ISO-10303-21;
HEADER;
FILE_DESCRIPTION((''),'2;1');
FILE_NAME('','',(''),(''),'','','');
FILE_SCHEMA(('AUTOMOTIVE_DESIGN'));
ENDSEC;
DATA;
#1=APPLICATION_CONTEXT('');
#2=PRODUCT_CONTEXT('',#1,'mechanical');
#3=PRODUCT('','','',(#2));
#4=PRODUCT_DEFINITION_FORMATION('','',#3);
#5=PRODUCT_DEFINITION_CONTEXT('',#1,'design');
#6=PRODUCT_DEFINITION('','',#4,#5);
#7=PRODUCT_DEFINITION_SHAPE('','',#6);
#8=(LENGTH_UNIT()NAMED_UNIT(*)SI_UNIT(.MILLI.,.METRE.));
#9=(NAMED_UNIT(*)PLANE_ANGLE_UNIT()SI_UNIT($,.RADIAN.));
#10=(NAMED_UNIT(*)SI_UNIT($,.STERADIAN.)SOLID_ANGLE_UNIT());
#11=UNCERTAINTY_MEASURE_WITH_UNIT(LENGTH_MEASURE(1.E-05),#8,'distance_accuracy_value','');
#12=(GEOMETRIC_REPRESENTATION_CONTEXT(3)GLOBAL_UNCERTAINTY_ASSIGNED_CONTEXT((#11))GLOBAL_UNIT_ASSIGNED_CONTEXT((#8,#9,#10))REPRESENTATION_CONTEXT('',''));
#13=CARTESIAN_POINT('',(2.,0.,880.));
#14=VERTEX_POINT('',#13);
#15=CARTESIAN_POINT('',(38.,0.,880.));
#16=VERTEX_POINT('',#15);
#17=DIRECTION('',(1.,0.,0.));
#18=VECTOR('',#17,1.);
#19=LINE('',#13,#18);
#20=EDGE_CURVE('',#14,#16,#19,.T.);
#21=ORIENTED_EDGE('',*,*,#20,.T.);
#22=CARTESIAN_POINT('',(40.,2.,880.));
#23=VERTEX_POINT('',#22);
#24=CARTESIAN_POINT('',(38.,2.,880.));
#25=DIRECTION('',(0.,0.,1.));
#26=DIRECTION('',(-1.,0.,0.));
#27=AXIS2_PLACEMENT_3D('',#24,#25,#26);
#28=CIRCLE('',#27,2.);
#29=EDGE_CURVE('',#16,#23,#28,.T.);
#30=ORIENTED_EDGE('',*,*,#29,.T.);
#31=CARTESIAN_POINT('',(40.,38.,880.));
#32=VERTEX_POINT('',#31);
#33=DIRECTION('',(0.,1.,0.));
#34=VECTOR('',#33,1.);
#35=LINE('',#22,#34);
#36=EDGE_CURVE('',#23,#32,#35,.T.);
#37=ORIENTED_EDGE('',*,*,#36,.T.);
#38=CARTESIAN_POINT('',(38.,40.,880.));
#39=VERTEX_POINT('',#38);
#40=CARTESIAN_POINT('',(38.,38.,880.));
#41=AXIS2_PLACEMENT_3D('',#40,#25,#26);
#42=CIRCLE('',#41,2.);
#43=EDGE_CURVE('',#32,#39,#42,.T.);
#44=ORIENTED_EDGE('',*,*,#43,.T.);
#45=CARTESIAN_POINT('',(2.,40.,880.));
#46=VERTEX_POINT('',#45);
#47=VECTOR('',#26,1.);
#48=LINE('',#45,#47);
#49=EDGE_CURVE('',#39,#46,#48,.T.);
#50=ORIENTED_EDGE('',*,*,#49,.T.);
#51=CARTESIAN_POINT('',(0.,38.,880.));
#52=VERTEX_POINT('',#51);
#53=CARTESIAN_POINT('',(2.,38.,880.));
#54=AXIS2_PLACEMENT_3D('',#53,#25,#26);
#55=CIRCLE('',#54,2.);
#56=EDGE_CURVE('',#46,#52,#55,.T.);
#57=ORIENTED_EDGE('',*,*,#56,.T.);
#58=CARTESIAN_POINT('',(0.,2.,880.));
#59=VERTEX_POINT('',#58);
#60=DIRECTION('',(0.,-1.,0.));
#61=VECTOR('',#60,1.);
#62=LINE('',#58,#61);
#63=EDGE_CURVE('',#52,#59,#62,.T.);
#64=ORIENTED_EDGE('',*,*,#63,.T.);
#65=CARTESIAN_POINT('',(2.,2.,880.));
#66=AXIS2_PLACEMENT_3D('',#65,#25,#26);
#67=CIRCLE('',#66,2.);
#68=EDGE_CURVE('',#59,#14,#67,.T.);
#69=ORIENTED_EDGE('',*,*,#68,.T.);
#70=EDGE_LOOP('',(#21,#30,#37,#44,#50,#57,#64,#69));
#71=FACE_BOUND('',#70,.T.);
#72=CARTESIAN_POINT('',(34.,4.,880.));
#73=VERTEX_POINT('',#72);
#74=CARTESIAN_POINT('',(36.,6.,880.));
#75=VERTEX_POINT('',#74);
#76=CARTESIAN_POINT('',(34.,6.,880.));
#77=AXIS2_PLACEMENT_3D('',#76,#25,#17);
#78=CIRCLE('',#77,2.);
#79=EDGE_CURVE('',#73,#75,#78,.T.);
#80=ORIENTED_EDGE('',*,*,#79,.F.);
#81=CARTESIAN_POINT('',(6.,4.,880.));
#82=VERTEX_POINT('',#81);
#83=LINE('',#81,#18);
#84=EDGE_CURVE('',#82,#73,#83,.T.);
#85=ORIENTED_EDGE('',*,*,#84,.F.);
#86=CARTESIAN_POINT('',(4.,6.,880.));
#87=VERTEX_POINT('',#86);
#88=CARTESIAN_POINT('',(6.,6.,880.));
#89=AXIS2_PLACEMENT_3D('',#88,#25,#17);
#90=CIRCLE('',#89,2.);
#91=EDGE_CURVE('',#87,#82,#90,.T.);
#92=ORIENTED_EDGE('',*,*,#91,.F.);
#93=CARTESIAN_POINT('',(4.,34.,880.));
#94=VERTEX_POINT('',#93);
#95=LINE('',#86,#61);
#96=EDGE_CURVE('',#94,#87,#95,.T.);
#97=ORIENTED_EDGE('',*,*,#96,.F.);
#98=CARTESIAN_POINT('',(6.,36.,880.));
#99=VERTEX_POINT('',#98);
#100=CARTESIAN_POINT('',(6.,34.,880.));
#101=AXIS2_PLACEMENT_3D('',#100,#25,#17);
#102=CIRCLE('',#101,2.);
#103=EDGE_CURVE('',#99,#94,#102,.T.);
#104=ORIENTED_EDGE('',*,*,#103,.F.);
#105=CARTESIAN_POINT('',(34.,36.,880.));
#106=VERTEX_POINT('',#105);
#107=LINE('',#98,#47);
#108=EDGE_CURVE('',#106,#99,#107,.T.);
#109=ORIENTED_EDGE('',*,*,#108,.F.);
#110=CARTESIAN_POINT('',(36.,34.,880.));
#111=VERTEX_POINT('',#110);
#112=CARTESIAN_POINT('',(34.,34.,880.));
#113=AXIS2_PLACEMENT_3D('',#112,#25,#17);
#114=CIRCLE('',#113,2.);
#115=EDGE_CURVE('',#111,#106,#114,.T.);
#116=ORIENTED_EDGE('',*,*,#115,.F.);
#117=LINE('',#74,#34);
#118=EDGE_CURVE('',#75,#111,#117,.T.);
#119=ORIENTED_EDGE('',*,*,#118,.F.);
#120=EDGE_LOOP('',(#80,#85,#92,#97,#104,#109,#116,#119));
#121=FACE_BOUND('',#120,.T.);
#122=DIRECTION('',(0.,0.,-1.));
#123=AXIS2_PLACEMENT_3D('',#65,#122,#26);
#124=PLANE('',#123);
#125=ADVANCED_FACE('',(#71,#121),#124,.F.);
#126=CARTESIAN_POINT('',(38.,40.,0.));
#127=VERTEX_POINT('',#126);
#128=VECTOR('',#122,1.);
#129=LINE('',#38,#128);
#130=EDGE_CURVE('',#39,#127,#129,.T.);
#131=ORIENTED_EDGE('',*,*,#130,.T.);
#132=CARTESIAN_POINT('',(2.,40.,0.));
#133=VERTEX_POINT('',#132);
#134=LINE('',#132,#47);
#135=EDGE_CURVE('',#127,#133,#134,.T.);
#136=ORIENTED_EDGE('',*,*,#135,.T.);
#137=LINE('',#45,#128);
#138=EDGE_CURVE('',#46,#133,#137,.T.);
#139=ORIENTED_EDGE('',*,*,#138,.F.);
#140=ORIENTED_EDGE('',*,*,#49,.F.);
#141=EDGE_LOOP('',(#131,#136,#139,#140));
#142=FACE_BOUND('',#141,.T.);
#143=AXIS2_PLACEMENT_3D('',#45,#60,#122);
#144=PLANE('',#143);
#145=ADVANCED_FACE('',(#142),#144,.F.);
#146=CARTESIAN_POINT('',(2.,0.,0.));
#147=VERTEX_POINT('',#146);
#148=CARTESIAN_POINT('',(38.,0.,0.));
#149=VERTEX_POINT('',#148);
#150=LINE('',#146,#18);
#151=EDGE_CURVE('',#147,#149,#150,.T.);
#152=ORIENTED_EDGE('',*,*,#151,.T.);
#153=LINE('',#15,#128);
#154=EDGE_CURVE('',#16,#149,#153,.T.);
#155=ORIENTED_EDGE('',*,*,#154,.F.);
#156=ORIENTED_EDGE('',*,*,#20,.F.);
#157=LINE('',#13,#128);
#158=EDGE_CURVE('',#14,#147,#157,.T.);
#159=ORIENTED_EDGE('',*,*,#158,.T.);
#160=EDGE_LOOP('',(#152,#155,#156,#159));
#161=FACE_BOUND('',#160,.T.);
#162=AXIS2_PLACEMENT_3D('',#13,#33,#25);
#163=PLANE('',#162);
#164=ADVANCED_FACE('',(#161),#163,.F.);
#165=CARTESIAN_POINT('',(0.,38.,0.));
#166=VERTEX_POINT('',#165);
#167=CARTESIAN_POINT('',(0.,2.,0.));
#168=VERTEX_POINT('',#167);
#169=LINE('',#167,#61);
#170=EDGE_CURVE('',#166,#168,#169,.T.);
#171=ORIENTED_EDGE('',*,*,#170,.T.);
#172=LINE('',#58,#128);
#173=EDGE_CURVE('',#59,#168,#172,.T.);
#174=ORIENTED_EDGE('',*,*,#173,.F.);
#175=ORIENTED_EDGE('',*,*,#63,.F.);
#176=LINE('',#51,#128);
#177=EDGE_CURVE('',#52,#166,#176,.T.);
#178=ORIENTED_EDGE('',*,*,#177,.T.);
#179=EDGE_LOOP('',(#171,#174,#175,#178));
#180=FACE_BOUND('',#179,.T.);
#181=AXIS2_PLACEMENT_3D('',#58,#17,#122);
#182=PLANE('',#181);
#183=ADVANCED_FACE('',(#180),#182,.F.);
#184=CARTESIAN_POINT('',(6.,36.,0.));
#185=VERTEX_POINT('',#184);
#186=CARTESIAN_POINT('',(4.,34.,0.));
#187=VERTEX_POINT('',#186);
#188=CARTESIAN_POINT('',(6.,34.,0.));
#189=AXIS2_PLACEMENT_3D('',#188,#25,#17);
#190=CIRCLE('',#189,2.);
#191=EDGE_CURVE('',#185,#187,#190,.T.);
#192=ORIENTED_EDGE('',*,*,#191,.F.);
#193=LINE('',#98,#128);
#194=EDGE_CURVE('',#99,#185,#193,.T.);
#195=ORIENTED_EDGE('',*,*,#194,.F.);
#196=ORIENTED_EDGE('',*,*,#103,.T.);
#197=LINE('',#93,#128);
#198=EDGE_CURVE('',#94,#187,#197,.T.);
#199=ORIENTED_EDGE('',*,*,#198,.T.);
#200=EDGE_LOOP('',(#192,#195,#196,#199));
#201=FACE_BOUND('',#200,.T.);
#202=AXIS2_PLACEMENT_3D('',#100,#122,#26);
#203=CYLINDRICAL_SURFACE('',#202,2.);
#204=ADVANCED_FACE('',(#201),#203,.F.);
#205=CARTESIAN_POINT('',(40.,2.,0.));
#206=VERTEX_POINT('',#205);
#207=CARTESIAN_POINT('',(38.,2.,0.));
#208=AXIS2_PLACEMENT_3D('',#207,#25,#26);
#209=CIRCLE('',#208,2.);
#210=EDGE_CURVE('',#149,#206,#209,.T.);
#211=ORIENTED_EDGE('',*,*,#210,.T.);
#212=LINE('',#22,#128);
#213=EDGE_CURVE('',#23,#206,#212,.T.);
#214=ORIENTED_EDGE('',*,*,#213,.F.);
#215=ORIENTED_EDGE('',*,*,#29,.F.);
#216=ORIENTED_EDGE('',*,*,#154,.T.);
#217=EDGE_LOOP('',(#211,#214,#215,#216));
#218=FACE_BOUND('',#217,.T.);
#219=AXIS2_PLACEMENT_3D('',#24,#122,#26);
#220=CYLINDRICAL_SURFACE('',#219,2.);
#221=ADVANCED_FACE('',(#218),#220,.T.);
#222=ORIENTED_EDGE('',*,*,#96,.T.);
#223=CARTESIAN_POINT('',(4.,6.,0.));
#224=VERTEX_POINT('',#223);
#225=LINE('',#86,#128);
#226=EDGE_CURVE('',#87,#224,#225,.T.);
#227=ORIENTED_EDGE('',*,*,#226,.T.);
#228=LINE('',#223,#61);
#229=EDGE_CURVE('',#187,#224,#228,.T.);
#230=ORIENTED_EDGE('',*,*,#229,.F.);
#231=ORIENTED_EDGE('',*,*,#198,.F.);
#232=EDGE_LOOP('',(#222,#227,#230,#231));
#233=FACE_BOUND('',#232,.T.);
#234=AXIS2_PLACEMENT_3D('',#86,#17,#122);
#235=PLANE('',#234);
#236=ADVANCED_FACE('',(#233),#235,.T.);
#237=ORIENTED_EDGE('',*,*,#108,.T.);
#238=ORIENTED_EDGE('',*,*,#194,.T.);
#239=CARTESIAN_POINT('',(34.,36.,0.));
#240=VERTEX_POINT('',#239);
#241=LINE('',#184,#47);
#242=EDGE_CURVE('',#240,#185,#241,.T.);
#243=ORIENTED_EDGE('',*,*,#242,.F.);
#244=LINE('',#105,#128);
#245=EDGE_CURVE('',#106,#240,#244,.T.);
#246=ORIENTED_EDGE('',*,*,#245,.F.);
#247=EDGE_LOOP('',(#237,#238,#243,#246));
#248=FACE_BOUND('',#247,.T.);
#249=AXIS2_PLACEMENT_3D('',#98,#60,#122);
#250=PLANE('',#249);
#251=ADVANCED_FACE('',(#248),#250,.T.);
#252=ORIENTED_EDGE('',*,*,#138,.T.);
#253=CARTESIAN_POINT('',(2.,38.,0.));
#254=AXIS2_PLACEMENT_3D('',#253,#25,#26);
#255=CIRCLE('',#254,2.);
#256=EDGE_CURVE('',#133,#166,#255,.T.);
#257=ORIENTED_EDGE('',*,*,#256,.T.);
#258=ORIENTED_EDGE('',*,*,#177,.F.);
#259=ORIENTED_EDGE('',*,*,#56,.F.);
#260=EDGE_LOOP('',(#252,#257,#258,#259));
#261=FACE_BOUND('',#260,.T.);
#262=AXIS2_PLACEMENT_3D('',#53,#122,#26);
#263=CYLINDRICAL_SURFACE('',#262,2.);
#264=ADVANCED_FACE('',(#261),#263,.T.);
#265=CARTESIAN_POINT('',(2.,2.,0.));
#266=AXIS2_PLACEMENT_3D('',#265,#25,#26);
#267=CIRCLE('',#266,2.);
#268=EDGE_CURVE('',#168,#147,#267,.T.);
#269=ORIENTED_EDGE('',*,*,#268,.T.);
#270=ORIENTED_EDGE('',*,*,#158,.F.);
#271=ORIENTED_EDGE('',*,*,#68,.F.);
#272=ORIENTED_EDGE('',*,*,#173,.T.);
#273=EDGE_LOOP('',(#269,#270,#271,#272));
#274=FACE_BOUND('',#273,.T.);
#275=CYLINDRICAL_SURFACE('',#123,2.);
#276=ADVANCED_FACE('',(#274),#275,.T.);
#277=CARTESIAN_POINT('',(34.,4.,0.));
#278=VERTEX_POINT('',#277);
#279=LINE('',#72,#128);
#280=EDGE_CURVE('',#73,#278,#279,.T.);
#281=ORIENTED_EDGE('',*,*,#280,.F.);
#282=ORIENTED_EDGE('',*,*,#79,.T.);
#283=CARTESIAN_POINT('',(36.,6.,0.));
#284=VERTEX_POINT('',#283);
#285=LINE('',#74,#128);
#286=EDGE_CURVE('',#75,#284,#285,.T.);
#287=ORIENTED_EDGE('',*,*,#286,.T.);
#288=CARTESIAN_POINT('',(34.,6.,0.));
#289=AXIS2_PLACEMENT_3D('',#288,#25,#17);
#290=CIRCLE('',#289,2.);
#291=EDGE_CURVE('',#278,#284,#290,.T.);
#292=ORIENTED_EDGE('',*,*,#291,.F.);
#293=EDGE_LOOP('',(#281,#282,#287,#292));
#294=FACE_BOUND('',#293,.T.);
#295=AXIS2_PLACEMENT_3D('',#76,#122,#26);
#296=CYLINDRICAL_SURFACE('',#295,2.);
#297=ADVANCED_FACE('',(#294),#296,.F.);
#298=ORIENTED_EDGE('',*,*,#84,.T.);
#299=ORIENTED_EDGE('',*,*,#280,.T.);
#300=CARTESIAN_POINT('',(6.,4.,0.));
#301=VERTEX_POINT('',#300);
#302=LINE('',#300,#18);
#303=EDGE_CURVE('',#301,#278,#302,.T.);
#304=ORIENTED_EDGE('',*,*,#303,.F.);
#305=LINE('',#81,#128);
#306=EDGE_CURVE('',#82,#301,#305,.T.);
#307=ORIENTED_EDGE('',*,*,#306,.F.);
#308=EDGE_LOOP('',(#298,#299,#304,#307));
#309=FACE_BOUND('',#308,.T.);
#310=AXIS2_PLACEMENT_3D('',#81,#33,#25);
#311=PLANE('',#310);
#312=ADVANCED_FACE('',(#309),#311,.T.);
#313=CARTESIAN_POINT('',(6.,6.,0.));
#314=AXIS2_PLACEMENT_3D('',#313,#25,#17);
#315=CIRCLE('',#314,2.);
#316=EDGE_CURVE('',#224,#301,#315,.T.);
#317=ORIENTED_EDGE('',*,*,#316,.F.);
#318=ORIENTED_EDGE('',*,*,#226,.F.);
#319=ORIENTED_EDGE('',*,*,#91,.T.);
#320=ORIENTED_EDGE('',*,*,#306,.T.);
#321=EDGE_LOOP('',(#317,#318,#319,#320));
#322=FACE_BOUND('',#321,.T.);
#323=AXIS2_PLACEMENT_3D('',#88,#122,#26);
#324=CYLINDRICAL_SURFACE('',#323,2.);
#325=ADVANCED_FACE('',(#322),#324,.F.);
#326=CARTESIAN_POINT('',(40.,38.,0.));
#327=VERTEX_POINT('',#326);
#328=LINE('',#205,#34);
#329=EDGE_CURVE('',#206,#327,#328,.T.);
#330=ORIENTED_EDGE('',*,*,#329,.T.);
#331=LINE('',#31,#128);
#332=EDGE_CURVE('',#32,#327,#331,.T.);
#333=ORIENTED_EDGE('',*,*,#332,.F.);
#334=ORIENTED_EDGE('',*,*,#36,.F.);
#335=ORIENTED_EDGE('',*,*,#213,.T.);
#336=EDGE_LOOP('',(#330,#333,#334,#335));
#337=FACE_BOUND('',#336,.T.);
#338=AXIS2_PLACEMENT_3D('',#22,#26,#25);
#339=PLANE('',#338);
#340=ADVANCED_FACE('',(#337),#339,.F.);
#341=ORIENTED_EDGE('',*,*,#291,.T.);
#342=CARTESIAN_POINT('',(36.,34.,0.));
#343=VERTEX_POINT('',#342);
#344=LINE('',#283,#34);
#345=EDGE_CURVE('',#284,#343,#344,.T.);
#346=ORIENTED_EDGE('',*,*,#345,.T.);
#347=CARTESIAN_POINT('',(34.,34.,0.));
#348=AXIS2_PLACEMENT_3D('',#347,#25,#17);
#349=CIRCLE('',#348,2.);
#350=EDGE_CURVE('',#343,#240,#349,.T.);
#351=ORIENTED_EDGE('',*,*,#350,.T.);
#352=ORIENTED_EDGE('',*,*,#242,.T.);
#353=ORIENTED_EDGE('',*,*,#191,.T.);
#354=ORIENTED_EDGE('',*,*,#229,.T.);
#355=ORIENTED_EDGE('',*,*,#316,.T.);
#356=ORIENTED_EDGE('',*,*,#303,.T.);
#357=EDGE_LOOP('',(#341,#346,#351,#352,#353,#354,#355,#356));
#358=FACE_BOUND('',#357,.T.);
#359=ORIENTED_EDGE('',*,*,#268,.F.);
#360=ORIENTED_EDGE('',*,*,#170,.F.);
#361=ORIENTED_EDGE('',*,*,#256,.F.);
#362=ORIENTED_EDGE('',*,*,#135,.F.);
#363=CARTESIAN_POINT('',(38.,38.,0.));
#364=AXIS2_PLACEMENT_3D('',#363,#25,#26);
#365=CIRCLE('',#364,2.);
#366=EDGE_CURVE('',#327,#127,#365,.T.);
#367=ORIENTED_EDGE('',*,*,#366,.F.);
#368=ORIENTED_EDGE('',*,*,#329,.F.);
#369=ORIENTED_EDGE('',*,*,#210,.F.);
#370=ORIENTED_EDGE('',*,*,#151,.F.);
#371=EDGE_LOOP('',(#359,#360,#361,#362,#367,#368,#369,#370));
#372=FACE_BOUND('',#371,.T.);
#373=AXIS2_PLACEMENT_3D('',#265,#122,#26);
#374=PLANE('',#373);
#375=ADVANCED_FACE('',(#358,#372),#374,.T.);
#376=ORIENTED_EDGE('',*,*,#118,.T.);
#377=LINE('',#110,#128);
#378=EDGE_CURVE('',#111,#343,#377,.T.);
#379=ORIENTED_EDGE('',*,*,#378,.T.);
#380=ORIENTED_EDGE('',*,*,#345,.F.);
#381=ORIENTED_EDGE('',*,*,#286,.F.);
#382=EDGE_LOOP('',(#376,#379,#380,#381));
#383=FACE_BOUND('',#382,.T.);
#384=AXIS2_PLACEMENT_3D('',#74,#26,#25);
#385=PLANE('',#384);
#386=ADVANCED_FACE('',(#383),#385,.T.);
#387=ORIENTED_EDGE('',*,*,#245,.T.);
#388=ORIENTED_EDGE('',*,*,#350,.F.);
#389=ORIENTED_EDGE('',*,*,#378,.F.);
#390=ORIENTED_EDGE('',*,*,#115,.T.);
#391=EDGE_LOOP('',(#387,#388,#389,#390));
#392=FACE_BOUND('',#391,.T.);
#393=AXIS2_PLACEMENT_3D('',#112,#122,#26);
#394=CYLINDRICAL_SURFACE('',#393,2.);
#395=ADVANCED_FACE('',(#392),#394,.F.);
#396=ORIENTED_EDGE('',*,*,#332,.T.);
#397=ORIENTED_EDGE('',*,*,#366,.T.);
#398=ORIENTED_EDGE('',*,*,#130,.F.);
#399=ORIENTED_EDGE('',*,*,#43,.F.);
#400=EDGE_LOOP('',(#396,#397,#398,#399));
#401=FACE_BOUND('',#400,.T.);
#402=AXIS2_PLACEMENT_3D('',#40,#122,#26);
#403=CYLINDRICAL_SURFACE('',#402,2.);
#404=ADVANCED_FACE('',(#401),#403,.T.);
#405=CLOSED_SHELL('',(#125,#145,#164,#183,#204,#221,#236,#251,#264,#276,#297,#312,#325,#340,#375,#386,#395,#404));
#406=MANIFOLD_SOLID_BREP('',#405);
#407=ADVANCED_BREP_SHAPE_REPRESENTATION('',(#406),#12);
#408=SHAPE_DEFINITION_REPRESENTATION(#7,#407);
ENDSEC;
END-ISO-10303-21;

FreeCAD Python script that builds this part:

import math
import FreeCAD as App
import Part
import Sketcher
Q = App.Units.Quantity

doc = App.newDocument("Part")
params = doc.addObject("Spreadsheet::Sheet", "Params")
for row, (alias, value) in enumerate([
    ("sketch1_radius", "2 mm"),
    ("sketch1_width", "36 mm"),
    ("sketch1_width2", "28 mm"),
    ("pad1_length", "880 mm"),
], start=1):
    params.set(f"A{row}", alias)
    params.set(f"B{row}", "=" + value)
    params.setAlias(f"B{row}", alias)

body = doc.addObject("PartDesign::Body", "Body")

sketch1 = body.newObject("Sketcher::SketchObject", "Sketch")
sketch1.AttachmentSupport = (doc.getObject("XY_Plane"), [""])
sketch1.MapMode = "FlatFace"
sketch1.addGeometry([
    Part.LineSegment(App.Vector(2, 0, 0), App.Vector(38, 0, 0)),
    Part.ArcOfCircle(Part.Circle(App.Vector(38, 2, 0), App.Vector(0, 0, 1), 2), math.radians(-90), math.radians(0)),
    Part.LineSegment(App.Vector(40, 2, 0), App.Vector(40, 38, 0)),
    Part.ArcOfCircle(Part.Circle(App.Vector(38, 38, 0), App.Vector(0, 0, 1), 2), math.radians(0), math.radians(90)),
    Part.LineSegment(App.Vector(38, 40, 0), App.Vector(2, 40, 0)),
    Part.ArcOfCircle(Part.Circle(App.Vector(2, 38, 0), App.Vector(0, 0, 1), 2), math.radians(90), math.radians(180)),
    Part.LineSegment(App.Vector(0, 38, 0), App.Vector(0, 2, 0)),
    Part.ArcOfCircle(Part.Circle(App.Vector(2, 2, 0), App.Vector(0, 0, 1), 2), math.radians(-180), math.radians(-90)),
    Part.LineSegment(App.Vector(34, 4, 0), App.Vector(6, 4, 0)),
    Part.ArcOfCircle(Part.Circle(App.Vector(6, 6, 0), App.Vector(0, 0, 1), 2), math.radians(-180), math.radians(-90)),
    Part.LineSegment(App.Vector(4, 6, 0), App.Vector(4, 34, 0)),
    Part.ArcOfCircle(Part.Circle(App.Vector(6, 34, 0), App.Vector(0, 0, 1), 2), math.radians(90), math.radians(180)),
    Part.LineSegment(App.Vector(6, 36, 0), App.Vector(34, 36, 0)),
    Part.ArcOfCircle(Part.Circle(App.Vector(34, 34, 0), App.Vector(0, 0, 1), 2), math.radians(0), math.radians(90)),
    Part.LineSegment(App.Vector(36, 34, 0), App.Vector(36, 6, 0)),
    Part.ArcOfCircle(Part.Circle(App.Vector(34, 6, 0), App.Vector(0, 0, 1), 2), math.radians(-90), math.radians(0)),
], False)
sketch1.addConstraint([
    Sketcher.Constraint("Tangent", 0, 2, 1, 1),
    Sketcher.Constraint("Tangent", 1, 2, 2, 1),
    Sketcher.Constraint("Tangent", 2, 2, 3, 1),
    Sketcher.Constraint("Tangent", 3, 2, 4, 1),
    Sketcher.Constraint("Tangent", 4, 2, 5, 1),
    Sketcher.Constraint("Tangent", 5, 2, 6, 1),
    Sketcher.Constraint("Tangent", 6, 2, 7, 1),
    Sketcher.Constraint("Tangent", 7, 2, 0, 1),
    Sketcher.Constraint("Tangent", 8, 2, 9, 2),
    Sketcher.Constraint("Tangent", 9, 1, 10, 1),
    Sketcher.Constraint("Tangent", 10, 2, 11, 2),
    Sketcher.Constraint("Tangent", 11, 1, 12, 1),
    Sketcher.Constraint("Tangent", 12, 2, 13, 2),
    Sketcher.Constraint("Tangent", 13, 1, 14, 1),
    Sketcher.Constraint("Tangent", 14, 2, 15, 2),
    Sketcher.Constraint("Tangent", 15, 1, 8, 1),
    Sketcher.Constraint("Horizontal", 0),
    Sketcher.Constraint("Vertical", 2),
    Sketcher.Constraint("Horizontal", 4),
    Sketcher.Constraint("Vertical", 6),
    Sketcher.Constraint("Horizontal", 8),
    Sketcher.Constraint("Vertical", 10),
    Sketcher.Constraint("Horizontal", 12),
    Sketcher.Constraint("Vertical", 14),
    Sketcher.Constraint("Equal", 1, 3),
    Sketcher.Constraint("Equal", 3, 5),
    Sketcher.Constraint("Equal", 5, 7),
    Sketcher.Constraint("Equal", 7, 9),
    Sketcher.Constraint("Equal", 9, 11),
    Sketcher.Constraint("Equal", 11, 13),
    Sketcher.Constraint("Equal", 13, 15),
    Sketcher.Constraint("PointOnObject", 0, 2, -1),
    Sketcher.Constraint("PointOnObject", 5, 2, -2),
    Sketcher.Constraint("Equal", 4, 2),
    Sketcher.Constraint("Equal", 12, 10),
    Sketcher.Constraint("Radius", 1, Q("2 mm")),
    Sketcher.Constraint("DistanceX", 0, 1, 0, 2, Q("36 mm")),
    Sketcher.Constraint("DistanceX", 8, 2, 8, 1, Q("28 mm")),
    Sketcher.Constraint("DistanceX", -1, 1, 9, 3, Q("6 mm")),
    Sketcher.Constraint("DistanceY", -1, 1, 9, 3, Q("6 mm")),
])
sketch1.setExpression("Constraints[35]", "Params.sketch1_radius")
sketch1.setExpression("Constraints[36]", "Params.sketch1_width")
sketch1.setExpression("Constraints[37]", "Params.sketch1_width2")
pad1 = body.newObject("PartDesign::Pad", "Pad")
pad1.Profile = sketch1
pad1.setExpression("Length", "Params.pad1_length")

doc.recompute()
